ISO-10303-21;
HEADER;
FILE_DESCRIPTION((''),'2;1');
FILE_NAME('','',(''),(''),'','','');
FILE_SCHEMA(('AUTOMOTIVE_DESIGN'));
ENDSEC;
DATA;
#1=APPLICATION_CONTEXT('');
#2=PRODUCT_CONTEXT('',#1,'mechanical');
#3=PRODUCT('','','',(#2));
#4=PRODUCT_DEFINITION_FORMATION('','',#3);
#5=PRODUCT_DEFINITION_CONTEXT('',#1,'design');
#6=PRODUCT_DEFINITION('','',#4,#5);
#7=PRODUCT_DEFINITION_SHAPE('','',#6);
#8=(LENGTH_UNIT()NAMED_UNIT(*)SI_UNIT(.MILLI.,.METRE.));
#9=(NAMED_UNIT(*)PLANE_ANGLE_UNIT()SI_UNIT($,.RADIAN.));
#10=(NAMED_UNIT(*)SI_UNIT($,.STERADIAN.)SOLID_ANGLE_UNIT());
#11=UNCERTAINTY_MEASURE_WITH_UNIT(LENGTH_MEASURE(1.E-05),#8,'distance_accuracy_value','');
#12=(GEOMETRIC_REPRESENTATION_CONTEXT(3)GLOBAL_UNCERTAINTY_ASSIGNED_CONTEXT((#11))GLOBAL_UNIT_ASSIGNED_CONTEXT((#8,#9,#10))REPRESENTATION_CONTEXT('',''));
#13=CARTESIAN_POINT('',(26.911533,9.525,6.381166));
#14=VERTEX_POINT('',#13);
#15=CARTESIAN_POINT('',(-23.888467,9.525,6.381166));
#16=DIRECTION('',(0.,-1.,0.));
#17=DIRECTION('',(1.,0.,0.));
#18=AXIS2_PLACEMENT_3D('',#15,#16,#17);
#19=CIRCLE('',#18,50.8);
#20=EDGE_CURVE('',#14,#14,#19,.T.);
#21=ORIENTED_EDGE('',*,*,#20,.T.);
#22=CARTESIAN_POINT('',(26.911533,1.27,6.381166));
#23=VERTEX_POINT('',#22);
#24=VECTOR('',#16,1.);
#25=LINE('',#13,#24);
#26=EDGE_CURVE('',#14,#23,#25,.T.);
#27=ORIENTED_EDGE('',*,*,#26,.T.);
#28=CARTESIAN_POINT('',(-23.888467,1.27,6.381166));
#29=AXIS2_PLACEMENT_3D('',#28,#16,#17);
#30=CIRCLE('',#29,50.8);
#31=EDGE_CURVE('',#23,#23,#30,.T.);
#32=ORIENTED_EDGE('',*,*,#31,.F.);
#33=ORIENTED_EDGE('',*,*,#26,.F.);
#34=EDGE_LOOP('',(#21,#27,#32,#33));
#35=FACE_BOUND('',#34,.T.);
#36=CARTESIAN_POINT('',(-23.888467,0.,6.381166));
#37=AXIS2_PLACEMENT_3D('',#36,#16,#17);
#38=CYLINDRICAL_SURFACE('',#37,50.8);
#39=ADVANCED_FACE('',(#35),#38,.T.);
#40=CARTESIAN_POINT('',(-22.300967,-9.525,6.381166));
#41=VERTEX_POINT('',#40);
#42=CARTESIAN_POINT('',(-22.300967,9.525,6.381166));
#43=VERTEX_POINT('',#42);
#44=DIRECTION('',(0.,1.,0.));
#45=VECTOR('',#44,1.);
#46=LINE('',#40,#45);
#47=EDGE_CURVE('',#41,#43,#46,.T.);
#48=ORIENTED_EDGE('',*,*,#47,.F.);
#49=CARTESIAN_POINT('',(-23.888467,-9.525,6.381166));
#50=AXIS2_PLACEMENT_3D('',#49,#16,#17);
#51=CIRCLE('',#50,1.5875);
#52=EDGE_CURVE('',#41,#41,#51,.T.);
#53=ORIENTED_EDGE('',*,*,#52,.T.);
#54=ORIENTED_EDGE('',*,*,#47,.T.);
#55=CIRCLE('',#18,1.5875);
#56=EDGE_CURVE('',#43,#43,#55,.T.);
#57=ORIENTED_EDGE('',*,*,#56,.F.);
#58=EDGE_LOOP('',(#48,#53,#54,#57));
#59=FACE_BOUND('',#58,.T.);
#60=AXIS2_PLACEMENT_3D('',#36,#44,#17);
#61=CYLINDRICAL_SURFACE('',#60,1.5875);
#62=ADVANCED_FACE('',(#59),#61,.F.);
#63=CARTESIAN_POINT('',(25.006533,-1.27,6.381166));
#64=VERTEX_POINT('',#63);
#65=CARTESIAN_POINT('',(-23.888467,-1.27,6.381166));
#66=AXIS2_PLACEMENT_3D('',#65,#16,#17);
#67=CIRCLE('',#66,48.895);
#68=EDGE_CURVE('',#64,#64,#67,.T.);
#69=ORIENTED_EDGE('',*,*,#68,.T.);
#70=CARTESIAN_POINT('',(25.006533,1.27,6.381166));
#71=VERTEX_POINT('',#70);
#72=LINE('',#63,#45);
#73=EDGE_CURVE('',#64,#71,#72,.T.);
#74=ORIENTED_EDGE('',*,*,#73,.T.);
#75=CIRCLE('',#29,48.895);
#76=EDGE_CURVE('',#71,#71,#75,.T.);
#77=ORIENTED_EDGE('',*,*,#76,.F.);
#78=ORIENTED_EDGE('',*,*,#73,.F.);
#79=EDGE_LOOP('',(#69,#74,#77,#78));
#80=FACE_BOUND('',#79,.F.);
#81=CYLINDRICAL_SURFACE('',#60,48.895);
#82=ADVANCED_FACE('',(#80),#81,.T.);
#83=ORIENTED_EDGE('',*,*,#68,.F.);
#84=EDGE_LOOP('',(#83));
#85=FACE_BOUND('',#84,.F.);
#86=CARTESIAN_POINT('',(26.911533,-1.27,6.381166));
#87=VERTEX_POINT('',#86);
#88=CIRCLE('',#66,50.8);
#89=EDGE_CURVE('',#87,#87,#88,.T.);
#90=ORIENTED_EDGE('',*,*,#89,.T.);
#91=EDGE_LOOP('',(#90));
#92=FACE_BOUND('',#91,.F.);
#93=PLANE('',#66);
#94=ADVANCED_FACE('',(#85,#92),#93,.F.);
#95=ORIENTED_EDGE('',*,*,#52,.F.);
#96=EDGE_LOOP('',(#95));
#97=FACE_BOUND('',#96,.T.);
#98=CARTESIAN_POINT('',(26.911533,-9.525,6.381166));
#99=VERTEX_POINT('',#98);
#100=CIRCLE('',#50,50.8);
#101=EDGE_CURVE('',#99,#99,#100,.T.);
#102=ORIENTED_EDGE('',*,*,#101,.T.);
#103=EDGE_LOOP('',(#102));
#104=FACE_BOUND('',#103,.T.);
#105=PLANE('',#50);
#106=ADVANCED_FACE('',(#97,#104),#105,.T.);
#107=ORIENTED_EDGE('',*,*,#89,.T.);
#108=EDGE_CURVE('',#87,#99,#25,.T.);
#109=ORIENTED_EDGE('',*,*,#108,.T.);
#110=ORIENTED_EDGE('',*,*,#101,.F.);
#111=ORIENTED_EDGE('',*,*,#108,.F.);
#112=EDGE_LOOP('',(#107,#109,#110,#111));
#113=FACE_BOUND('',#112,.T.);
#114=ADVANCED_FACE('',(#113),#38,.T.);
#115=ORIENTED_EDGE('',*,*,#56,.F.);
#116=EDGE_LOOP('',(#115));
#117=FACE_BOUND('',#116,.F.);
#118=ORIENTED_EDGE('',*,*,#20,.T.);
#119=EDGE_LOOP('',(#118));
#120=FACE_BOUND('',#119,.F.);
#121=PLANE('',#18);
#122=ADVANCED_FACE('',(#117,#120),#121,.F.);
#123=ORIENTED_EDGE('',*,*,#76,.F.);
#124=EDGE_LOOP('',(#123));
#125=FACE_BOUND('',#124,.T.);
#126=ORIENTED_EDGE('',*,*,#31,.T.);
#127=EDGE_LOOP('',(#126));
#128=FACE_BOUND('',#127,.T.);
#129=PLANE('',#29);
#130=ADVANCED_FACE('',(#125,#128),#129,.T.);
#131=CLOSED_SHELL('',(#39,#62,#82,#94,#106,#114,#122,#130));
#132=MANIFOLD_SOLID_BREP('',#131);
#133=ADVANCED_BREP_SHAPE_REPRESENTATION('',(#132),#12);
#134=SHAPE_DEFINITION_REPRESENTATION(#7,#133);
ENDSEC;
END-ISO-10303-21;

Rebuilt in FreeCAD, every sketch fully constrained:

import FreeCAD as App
import Part
import Sketcher
Q = App.Units.Quantity

doc = App.newDocument("Part")
body = doc.addObject("PartDesign::Body", "Body")

# Sketch on XZ plane
sketch1 = body.newObject("Sketcher::SketchObject", "Sketch")
sketch1.AttachmentSupport = (doc.getObject("XZ_Plane"), [""])
sketch1.MapMode = "FlatFace"
sketch1.addGeometry(Part.Circle(App.Vector(-23.888467, 6.381166, 0), App.Vector(0, 0, 1), 48.895), False)
sketch1.addGeometry(Part.Circle(App.Vector(-23.888467, 6.381166, 0), App.Vector(0, 0, 1), 1.5875), False)
sketch1.addConstraint(Sketcher.Constraint("Coincident", 1, 3, 0, 3))
sketch1.addConstraint(Sketcher.Constraint("Diameter", 0, Q("3.85 in")))
sketch1.addConstraint(Sketcher.Constraint("Diameter", 1, Q("0.125 in")))
sketch1.addConstraint(Sketcher.Constraint("DistanceX", 0, 3, -1, 1, 23.888467))
sketch1.addConstraint(Sketcher.Constraint("DistanceY", -1, 1, 0, 3, 6.381166))
pad1 = body.newObject("PartDesign::Pad", "Pad")
pad1.Profile = sketch1
pad1.Length = Q("0.75 in")
pad1.Midplane = True

# Sketch on XZ plane
sketch2 = body.newObject("Sketcher::SketchObject", "Sketch001")
sketch2.AttachmentSupport = (doc.getObject("XZ_Plane"), [""])
sketch2.MapMode = "FlatFace"
sketch2.addGeometry(Part.Circle(App.Vector(-23.888467, 6.381166, 0), App.Vector(0, 0, 1), 50.8), False)
sketch2.addGeometry(Part.Circle(App.Vector(-23.888467, 6.381166, 0), App.Vector(0, 0, 1), 48.895), False)
sketch2.addConstraint(Sketcher.Constraint("Coincident", 1, 3, 0, 3))
sketch2.addConstraint(Sketcher.Constraint("Diameter", 0, Q("4 in")))
sketch2.addConstraint(Sketcher.Constraint("Diameter", 1, Q("3.85 in")))
sketch2.addConstraint(Sketcher.Constraint("DistanceX", 0, 3, -1, 1, 23.888467))
sketch2.addConstraint(Sketcher.Constraint("DistanceY", -1, 1, 0, 3, 6.381166))
pad2 = body.newObject("PartDesign::Pad", "Pad001")
pad2.Profile = sketch2
pad2.Length = Q("0.75 in")
pad2.Midplane = True

# Sketch on XZ plane
sketch3 = body.newObject("Sketcher::SketchObject", "Sketch002")
sketch3.AttachmentSupport = (doc.getObject("XZ_Plane"), [""])
sketch3.MapMode = "FlatFace"
sketch3.addGeometry(Part.Circle(App.Vector(-23.888467, 6.381166, 0), App.Vector(0, 0, 1), 50.8), False)
sketch3.addGeometry(Part.Circle(App.Vector(-23.888467, 6.381166, 0), App.Vector(0, 0, 1), 48.895), False)
sketch3.addConstraint(Sketcher.Constraint("Coincident", 1, 3, 0, 3))
sketch3.addConstraint(Sketcher.Constraint("Diameter", 0, Q("4 in")))
sketch3.addConstraint(Sketcher.Constraint("Diameter", 1, Q("3.85 in")))
sketch3.addConstraint(Sketcher.Constraint("DistanceX", 0, 3, -1, 1, 23.888467))
sketch3.addConstraint(Sketcher.Constraint("DistanceY", -1, 1, 0, 3, 6.381166))
pocket1 = body.newObject("PartDesign::Pocket", "Pocket")
pocket1.Profile = sketch3
pocket1.Length = Q("0.1 in")
pocket1.Midplane = True

doc.recompute()
